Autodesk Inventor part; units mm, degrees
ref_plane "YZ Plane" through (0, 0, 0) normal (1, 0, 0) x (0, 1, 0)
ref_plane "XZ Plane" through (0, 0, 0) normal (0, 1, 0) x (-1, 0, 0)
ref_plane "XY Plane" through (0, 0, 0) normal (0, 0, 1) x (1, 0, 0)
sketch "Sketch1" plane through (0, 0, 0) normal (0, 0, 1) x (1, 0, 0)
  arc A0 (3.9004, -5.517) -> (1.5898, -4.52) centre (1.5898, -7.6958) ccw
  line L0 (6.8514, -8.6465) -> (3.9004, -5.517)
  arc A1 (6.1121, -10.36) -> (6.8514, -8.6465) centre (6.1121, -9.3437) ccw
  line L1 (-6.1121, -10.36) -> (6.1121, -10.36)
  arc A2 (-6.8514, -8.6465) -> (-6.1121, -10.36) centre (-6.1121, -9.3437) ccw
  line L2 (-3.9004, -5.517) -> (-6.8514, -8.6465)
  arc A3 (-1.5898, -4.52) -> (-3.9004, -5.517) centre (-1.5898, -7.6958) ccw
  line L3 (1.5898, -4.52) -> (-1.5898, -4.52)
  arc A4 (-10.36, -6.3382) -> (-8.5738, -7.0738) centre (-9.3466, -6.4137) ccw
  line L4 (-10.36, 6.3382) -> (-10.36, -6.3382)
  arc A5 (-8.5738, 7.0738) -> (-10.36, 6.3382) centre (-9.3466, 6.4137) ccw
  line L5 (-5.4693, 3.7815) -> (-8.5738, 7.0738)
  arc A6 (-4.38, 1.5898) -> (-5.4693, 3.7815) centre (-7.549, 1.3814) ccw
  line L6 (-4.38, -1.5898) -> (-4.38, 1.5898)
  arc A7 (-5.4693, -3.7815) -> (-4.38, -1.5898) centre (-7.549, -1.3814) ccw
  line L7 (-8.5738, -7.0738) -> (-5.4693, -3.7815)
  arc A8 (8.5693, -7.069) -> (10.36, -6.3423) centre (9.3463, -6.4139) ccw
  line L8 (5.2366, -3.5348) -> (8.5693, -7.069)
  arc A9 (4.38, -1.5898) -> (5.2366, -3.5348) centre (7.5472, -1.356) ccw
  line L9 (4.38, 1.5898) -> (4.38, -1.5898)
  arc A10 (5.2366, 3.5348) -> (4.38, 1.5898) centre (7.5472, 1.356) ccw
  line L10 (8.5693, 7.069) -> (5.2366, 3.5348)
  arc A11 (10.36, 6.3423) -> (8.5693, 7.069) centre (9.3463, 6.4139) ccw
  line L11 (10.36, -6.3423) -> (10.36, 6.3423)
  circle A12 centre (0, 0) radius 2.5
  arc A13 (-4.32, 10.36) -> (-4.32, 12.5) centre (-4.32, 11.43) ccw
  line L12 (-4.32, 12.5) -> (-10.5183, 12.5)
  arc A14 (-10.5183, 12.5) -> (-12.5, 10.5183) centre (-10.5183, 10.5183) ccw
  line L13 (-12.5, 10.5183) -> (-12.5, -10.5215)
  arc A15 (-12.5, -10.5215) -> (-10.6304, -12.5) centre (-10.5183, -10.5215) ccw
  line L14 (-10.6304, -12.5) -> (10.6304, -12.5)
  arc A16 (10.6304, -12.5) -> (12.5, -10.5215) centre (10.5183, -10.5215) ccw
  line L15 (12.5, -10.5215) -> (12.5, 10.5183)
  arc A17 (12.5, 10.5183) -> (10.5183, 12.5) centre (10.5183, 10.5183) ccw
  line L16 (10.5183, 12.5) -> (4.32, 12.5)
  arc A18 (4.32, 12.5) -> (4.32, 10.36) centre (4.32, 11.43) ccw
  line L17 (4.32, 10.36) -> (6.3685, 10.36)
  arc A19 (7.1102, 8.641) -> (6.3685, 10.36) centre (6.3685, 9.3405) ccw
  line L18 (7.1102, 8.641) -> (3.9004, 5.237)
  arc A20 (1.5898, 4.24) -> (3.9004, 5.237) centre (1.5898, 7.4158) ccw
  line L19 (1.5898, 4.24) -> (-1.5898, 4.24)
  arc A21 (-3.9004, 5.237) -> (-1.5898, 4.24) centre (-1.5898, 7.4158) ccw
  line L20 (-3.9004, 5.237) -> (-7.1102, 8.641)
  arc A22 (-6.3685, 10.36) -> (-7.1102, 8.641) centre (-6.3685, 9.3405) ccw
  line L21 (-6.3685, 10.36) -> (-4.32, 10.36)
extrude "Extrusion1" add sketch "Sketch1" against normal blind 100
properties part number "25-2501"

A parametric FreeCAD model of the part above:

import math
import FreeCAD as App
import Part
import Sketcher

V = App.Vector

doc = App.newDocument("Part")
body = doc.addObject("PartDesign::Body", "Body")

sketch1 = body.newObject("Sketcher::SketchObject", "Sketch")
sketch1.AttachmentSupport = (doc.getObject("XY_Plane"), [""])
sketch1.MapMode = "FlatFace"
sketch1.addGeometry([
    Part.LineSegment(V(-6.3685, 10.36, 0), V(-4.32, 10.36, 0)),
    Part.ArcOfCircle(Part.Circle(V(-4.32, 11.43, 0), V(0, 0, 1), 1.07), math.radians(-90), math.radians(90)),
    Part.LineSegment(V(-4.32, 12.5, 0), V(-10.5183, 12.5, 0)),
    Part.ArcOfCircle(Part.Circle(V(-10.5183, 10.5183, 0), V(0, 0, 1), 1.9817), math.radians(90), math.radians(180)),
    Part.LineSegment(V(-12.5, 10.5183, 0), V(-12.5, -10.5215, 0)),
    Part.ArcOfCircle(Part.Circle(V(-10.5183, -10.5215, 0), V(0, 0, 1), 1.9817), math.radians(180), math.radians(266.757141)),
    Part.LineSegment(V(-10.6304, -12.5, 0), V(10.6304, -12.5, 0)),
    Part.ArcOfCircle(Part.Circle(V(10.5183, -10.5215, 0), V(0, 0, 1), 1.981673), math.radians(-86.757141), math.radians(0)),
    Part.LineSegment(V(12.5, -10.5215, 0), V(12.5, 10.5183, 0)),
    Part.ArcOfCircle(Part.Circle(V(10.5183, 10.5183, 0), V(0, 0, 1), 1.9817), math.radians(0), math.radians(90)),
    Part.LineSegment(V(10.5183, 12.5, 0), V(4.32, 12.5, 0)),
    Part.ArcOfCircle(Part.Circle(V(4.32, 11.43, 0), V(0, 0, 1), 1.07), math.radians(90), math.radians(270)),
    Part.LineSegment(V(4.32, 10.36, 0), V(6.3685, 10.36, 0)),
    Part.ArcOfCircle(Part.Circle(V(6.3685, 9.3405, 0), V(0, 0, 1), 1.019519), math.radians(-43.322793), math.radians(90)),
    Part.LineSegment(V(7.1102, 8.641, 0), V(3.9004, 5.237, 0)),
    Part.ArcOfCircle(Part.Circle(V(1.5898, 7.4158, 0), V(0, 0, 1), 3.1758), math.radians(-90), math.radians(-43.318391)),
    Part.LineSegment(V(1.5898, 4.24, 0), V(-1.5898, 4.24, 0)),
    Part.ArcOfCircle(Part.Circle(V(-1.5898, 7.4158, 0), V(0, 0, 1), 3.175853), math.radians(-136.681609), math.radians(-90)),
    Part.LineSegment(V(-3.9004, 5.237, 0), V(-7.1102, 8.641, 0)),
    Part.ArcOfCircle(Part.Circle(V(-6.3685, 9.3405, 0), V(0, 0, 1), 1.0195), math.radians(90), math.radians(223.322793)),
    Part.ArcOfCircle(Part.Circle(V(1.5898, -7.6958, 0), V(0, 0, 1), 3.175853), math.radians(43.318391), math.radians(90)),
    Part.LineSegment(V(3.9004, -5.517, 0), V(6.8514, -8.6465, 0)),
    Part.ArcOfCircle(Part.Circle(V(6.1121, -9.3437, 0), V(0, 0, 1), 1.0163), math.radians(-90), math.radians(43.321293)),
    Part.LineSegment(V(6.1121, -10.36, 0), V(-6.1121, -10.36, 0)),
    Part.ArcOfCircle(Part.Circle(V(-6.1121, -9.3437, 0), V(0, 0, 1), 1.016195), math.radians(136.678707), math.radians(270)),
    Part.LineSegment(V(-6.8514, -8.6465, 0), V(-3.9004, -5.517, 0)),
    Part.ArcOfCircle(Part.Circle(V(-1.5898, -7.6958, 0), V(0, 0, 1), 3.1758), math.radians(90), math.radians(136.681609)),
    Part.LineSegment(V(-1.5898, -4.52, 0), V(1.5898, -4.52, 0)),
    Part.ArcOfCircle(Part.Circle(V(9.3463, -6.4139, 0), V(0, 0, 1), 1.01631), math.radians(-139.865275), math.radians(4.040225)),
    Part.LineSegment(V(8.5693, -7.069, 0), V(5.2366, -3.5348, 0)),
    Part.ArcOfCircle(Part.Circle(V(7.5472, -1.356, 0), V(0, 0, 1), 3.175818), math.radians(-175.778132), math.radians(-136.681609)),
    Part.LineSegment(V(4.38, -1.5898, 0), V(4.38, 1.5898, 0)),
    Part.ArcOfCircle(Part.Circle(V(7.5472, 1.356, 0), V(0, 0, 1), 3.175853), math.radians(136.681609), math.radians(175.778132)),
    Part.LineSegment(V(5.2366, 3.5348, 0), V(8.5693, 7.069, 0)),
    Part.ArcOfCircle(Part.Circle(V(9.3463, 6.4139, 0), V(0, 0, 1), 1.016225), math.radians(-4.040225), math.radians(139.865275)),
    Part.LineSegment(V(10.36, 6.3423, 0), V(10.36, -6.3423, 0)),
    Part.ArcOfCircle(Part.Circle(V(-9.3466, -6.4137, 0), V(0, 0, 1), 1.016209), math.radians(175.73924), math.radians(319.497152)),
    Part.LineSegment(V(-10.36, -6.3382, 0), V(-10.36, 6.3382, 0)),
    Part.ArcOfCircle(Part.Circle(V(-9.3466, 6.4137, 0), V(0, 0, 1), 1.016342), math.radians(40.502848), math.radians(184.26076)),
    Part.LineSegment(V(-8.5738, 7.0738, 0), V(-5.4693, 3.7815, 0)),
    Part.ArcOfCircle(Part.Circle(V(-7.549, 1.3814, 0), V(0, 0, 1), 3.175845), math.radians(3.762472), math.radians(49.090888)),
    Part.LineSegment(V(-4.38, 1.5898, 0), V(-4.38, -1.5898, 0)),
    Part.ArcOfCircle(Part.Circle(V(-7.549, -1.3814, 0), V(0, 0, 1), 3.175788), math.radians(-49.090888), math.radians(-3.762472)),
    Part.LineSegment(V(-5.4693, -3.7815, 0), V(-8.5738, -7.0738, 0)),
    Part.Circle(V(0, 0, 0), V(0, 0, 1), 2.5),
], False)
sketch1.addConstraint([
    Sketcher.Constraint("Coincident", 0, 2, 1, 1),
    Sketcher.Constraint("Coincident", 1, 2, 2, 1),
    Sketcher.Constraint("Coincident", 2, 2, 3, 1),
    Sketcher.Constraint("Coincident", 3, 2, 4, 1),
    Sketcher.Constraint("Coincident", 4, 2, 5, 1),
    Sketcher.Constraint("Coincident", 5, 2, 6, 1),
    Sketcher.Constraint("Coincident", 6, 2, 7, 1),
    Sketcher.Constraint("Coincident", 7, 2, 8, 1),
    Sketcher.Constraint("Coincident", 8, 2, 9, 1),
    Sketcher.Constraint("Coincident", 9, 2, 10, 1),
    Sketcher.Constraint("Coincident", 10, 2, 11, 1),
    Sketcher.Constraint("Coincident", 11, 2, 12, 1),
    Sketcher.Constraint("Coincident", 12, 2, 13, 2),
    Sketcher.Constraint("Coincident", 13, 1, 14, 1),
    Sketcher.Constraint("Coincident", 14, 2, 15, 2),
    Sketcher.Constraint("Coincident", 15, 1, 16, 1),
    Sketcher.Constraint("Coincident", 16, 2, 17, 2),
    Sketcher.Constraint("Coincident", 17, 1, 18, 1),
    Sketcher.Constraint("Coincident", 18, 2, 19, 2),
    Sketcher.Constraint("Coincident", 19, 1, 0, 1),
    Sketcher.Constraint("Coincident", 20, 1, 21, 1),
    Sketcher.Constraint("Coincident", 21, 2, 22, 2),
    Sketcher.Constraint("Coincident", 22, 1, 23, 1),
    Sketcher.Constraint("Coincident", 23, 2, 24, 2),
    Sketcher.Constraint("Coincident", 24, 1, 25, 1),
    Sketcher.Constraint("Coincident", 25, 2, 26, 2),
    Sketcher.Constraint("Coincident", 26, 1, 27, 1),
    Sketcher.Constraint("Coincident", 27, 2, 20, 2),
    Sketcher.Constraint("Coincident", 28, 1, 29, 1),
    Sketcher.Constraint("Coincident", 29, 2, 30, 2),
    Sketcher.Constraint("Coincident", 30, 1, 31, 1),
    Sketcher.Constraint("Coincident", 31, 2, 32, 2),
    Sketcher.Constraint("Coincident", 32, 1, 33, 1),
    Sketcher.Constraint("Coincident", 33, 2, 34, 2),
    Sketcher.Constraint("Coincident", 34, 1, 35, 1),
    Sketcher.Constraint("Coincident", 35, 2, 28, 2),
    Sketcher.Constraint("Coincident", 36, 1, 37, 1),
    Sketcher.Constraint("Coincident", 37, 2, 38, 2),
    Sketcher.Constraint("Coincident", 38, 1, 39, 1),
    Sketcher.Constraint("Coincident", 39, 2, 40, 2),
    Sketcher.Constraint("Coincident", 40, 1, 41, 1),
    Sketcher.Constraint("Coincident", 41, 2, 42, 2),
    Sketcher.Constraint("Coincident", 42, 1, 43, 1),
    Sketcher.Constraint("Coincident", 43, 2, 36, 2),
    Sketcher.Constraint("Horizontal", 0),
    Sketcher.Constraint("Horizontal", 2),
    Sketcher.Constraint("Vertical", 4),
    Sketcher.Constraint("Horizontal", 6),
    Sketcher.Constraint("Vertical", 8),
    Sketcher.Constraint("Horizontal", 10),
    Sketcher.Constraint("Horizontal", 12),
    Sketcher.Constraint("Horizontal", 16),
    Sketcher.Constraint("Horizontal", 23),
    Sketcher.Constraint("Horizontal", 27),
    Sketcher.Constraint("Vertical", 31),
    Sketcher.Constraint("Vertical", 35),
    Sketcher.Constraint("Vertical", 37),
    Sketcher.Constraint("Vertical", 41),
    Sketcher.Constraint("Coincident", 44, 3, -1, 1),
    Sketcher.Constraint("Diameter", 44, 5.0),
    Sketcher.Constraint("Radius", 1, 1.07),
    Sketcher.Constraint("Radius", 11, 1.07),
    Sketcher.Constraint("DistanceY", -1, 1, 1, 2, 12.5),
    Sketcher.Constraint("DistanceX", 3, 2, -1, 1, 12.5),
    Sketcher.Constraint("DistanceY", 5, 2, -1, 1, 12.5),
    Sketcher.Constraint("DistanceX", -1, 1, 7, 2, 12.5),
    Sketcher.Constraint("DistanceY", -1, 1, 9, 2, 12.5),
    Sketcher.Constraint("Radius", 3, 1.9817),
    Sketcher.Constraint("Radius", 5, 1.9817),
    Sketcher.Constraint("Radius", 7, 1.9817),
    Sketcher.Constraint("Radius", 9, 1.9817),
    Sketcher.Constraint("Radius", 13, 1.0195),
    Sketcher.Constraint("Radius", 15, 3.1758),
    Sketcher.Constraint("Radius", 17, 3.1759),
    Sketcher.Constraint("Radius", 19, 1.0195),
    Sketcher.Constraint("Radius", 20, 3.1759),
    Sketcher.Constraint("Radius", 22, 1.0163),
    Sketcher.Constraint("Radius", 24, 1.0162),
    Sketcher.Constraint("Radius", 26, 3.1758),
    Sketcher.Constraint("Radius", 28, 1.0163),
    Sketcher.Constraint("Radius", 30, 3.1758),
    Sketcher.Constraint("Radius", 32, 3.1759),
    Sketcher.Constraint("Radius", 34, 1.0162),
    Sketcher.Constraint("Radius", 36, 1.0162),
    Sketcher.Constraint("Radius", 38, 1.0163),
    Sketcher.Constraint("Radius", 40, 3.1758),
    Sketcher.Constraint("Radius", 42, 3.1758),
    Sketcher.Constraint("DistanceX", 1, 3, -1, 1, 4.32),
    Sketcher.Constraint("DistanceX", -1, 1, 11, 3, 4.32),
    Sketcher.Constraint("DistanceX", 0, 2, -1, 1, 4.32),
    Sketcher.Constraint("DistanceX", 1, 2, -1, 1, 4.32),
    Sketcher.Constraint("DistanceX", -1, 1, 10, 2, 4.32),
    Sketcher.Constraint("DistanceX", -1, 1, 11, 2, 4.32),
    Sketcher.Constraint("DistanceY", -1, 1, 15, 1, 4.24),
    Sketcher.Constraint("DistanceY", 22, 1, -1, 1, 10.36),
    Sketcher.Constraint("DistanceY", 26, 1, -1, 1, 4.52),
    Sketcher.Constraint("DistanceX", -1, 1, 30, 1, 4.38),
    Sketcher.Constraint("DistanceX", -1, 1, 34, 1, 10.36),
    Sketcher.Constraint("DistanceX", 36, 1, -1, 1, 10.36),
    Sketcher.Constraint("DistanceX", 40, 1, -1, 1, 4.38),
    Sketcher.Constraint("DistanceX", 0, 1, 0, 2, 2.0485),
    Sketcher.Constraint("DistanceX", 2, 2, 2, 1, 6.1983),
    Sketcher.Constraint("DistanceX", 6, 1, 6, 2, 21.2608),
    Sketcher.Constraint("DistanceX", 10, 2, 10, 1, 6.1983),
    Sketcher.Constraint("DistanceX", 12, 1, 12, 2, 2.0485),
    Sketcher.Constraint("DistanceX", 16, 2, 16, 1, 3.1796),
    Sketcher.Constraint("DistanceX", 23, 2, 23, 1, 12.2242),
    Sketcher.Constraint("DistanceX", 27, 1, 27, 2, 3.1796),
    Sketcher.Constraint("DistanceY", 4, 2, 4, 1, 21.0398),
    Sketcher.Constraint("DistanceY", 8, 1, 8, 2, 21.0398),
    Sketcher.Constraint("DistanceY", 31, 1, 31, 2, 3.1796),
    Sketcher.Constraint("DistanceY", 35, 2, 35, 1, 12.6846),
    Sketcher.Constraint("DistanceY", 37, 1, 37, 2, 12.6764),
    Sketcher.Constraint("DistanceY", 41, 2, 41, 1, 3.1796),
    Sketcher.Constraint("DistanceX", -1, 1, 22, 3, 6.112),
    Sketcher.Constraint("DistanceX", 24, 3, -1, 1, 6.112),
    Sketcher.Constraint("DistanceY", 28, 3, -1, 1, 6.414),
    Sketcher.Constraint("DistanceY", 30, 3, -1, 1, 1.356),
    Sketcher.Constraint("DistanceY", -1, 1, 32, 3, 1.356),
    Sketcher.Constraint("DistanceY", -1, 1, 34, 3, 6.414),
    Sketcher.Constraint("DistanceX", 40, 3, -1, 1, 7.549),
    Sketcher.Constraint("DistanceX", 42, 3, -1, 1, 7.549),
    Sketcher.Constraint("DistanceY", -1, 1, 13, 1, 8.641),
    Sketcher.Constraint("DistanceY", -1, 1, 14, 2, 5.237),
    Sketcher.Constraint("DistanceY", -1, 1, 17, 1, 5.237),
    Sketcher.Constraint("DistanceY", -1, 1, 18, 2, 8.641),
    Sketcher.Constraint("DistanceY", 20, 1, -1, 1, 5.517),
    Sketcher.Constraint("DistanceX", -1, 1, 22, 1, 6.112),
    Sketcher.Constraint("DistanceY", 25, 2, -1, 1, 5.517),
    Sketcher.Constraint("DistanceY", 28, 1, -1, 1, 7.069),
    Sketcher.Constraint("DistanceY", -1, 1, 33, 2, 7.069),
    Sketcher.Constraint("Distance", 14, 4.6787),
    Sketcher.Constraint("Distance", 18, 4.6787),
    Sketcher.Constraint("Distance", 21, 4.3014),
    Sketcher.Constraint("Distance", 25, 4.3014),
    Sketcher.Constraint("Distance", 29, 4.8577),
    Sketcher.Constraint("Distance", 33, 4.8577),
    Sketcher.Constraint("Distance", 39, 4.5252),
    Sketcher.Constraint("Distance", 43, 4.5252),
    Sketcher.Constraint("DistanceY", 5, 3, -1, 1, 10.5215),
    Sketcher.Constraint("DistanceX", -1, 1, 13, 3, 6.3685),
    Sketcher.Constraint("DistanceX", 17, 3, -1, 1, 1.5898),
    Sketcher.Constraint("DistanceX", -1, 1, 20, 3, 1.5898),
    Sketcher.Constraint("DistanceX", 26, 3, -1, 1, 1.5898),
    Sketcher.Constraint("DistanceX", -1, 1, 28, 3, 9.3463),
    Sketcher.Constraint("DistanceX", -1, 1, 30, 3, 7.5472),
    Sketcher.Constraint("DistanceX", 36, 3, -1, 1, 9.3466),
    Sketcher.Constraint("DistanceY", 36, 3, -1, 1, 6.4137),
    Sketcher.Constraint("DistanceX", 38, 3, -1, 1, 9.3466),
    Sketcher.Constraint("DistanceY", -1, 1, 40, 3, 1.3814),
    Sketcher.Constraint("DistanceY", -1, 1, 3, 2, 10.5183),
    Sketcher.Constraint("DistanceY", 7, 2, -1, 1, 10.5215),
    Sketcher.Constraint("DistanceX", -1, 1, 15, 1, 1.5898),
    Sketcher.Constraint("DistanceX", 26, 1, -1, 1, 1.5898),
    Sketcher.Constraint("DistanceX", 38, 1, -1, 1, 8.5738),
    Sketcher.Constraint("DistanceX", 42, 1, -1, 1, 5.4693),
])
pad1 = body.newObject("PartDesign::Pad", "Pad")
pad1.Profile = sketch1
pad1.Length = 100
pad1.Reversed = True

doc.recompute()
